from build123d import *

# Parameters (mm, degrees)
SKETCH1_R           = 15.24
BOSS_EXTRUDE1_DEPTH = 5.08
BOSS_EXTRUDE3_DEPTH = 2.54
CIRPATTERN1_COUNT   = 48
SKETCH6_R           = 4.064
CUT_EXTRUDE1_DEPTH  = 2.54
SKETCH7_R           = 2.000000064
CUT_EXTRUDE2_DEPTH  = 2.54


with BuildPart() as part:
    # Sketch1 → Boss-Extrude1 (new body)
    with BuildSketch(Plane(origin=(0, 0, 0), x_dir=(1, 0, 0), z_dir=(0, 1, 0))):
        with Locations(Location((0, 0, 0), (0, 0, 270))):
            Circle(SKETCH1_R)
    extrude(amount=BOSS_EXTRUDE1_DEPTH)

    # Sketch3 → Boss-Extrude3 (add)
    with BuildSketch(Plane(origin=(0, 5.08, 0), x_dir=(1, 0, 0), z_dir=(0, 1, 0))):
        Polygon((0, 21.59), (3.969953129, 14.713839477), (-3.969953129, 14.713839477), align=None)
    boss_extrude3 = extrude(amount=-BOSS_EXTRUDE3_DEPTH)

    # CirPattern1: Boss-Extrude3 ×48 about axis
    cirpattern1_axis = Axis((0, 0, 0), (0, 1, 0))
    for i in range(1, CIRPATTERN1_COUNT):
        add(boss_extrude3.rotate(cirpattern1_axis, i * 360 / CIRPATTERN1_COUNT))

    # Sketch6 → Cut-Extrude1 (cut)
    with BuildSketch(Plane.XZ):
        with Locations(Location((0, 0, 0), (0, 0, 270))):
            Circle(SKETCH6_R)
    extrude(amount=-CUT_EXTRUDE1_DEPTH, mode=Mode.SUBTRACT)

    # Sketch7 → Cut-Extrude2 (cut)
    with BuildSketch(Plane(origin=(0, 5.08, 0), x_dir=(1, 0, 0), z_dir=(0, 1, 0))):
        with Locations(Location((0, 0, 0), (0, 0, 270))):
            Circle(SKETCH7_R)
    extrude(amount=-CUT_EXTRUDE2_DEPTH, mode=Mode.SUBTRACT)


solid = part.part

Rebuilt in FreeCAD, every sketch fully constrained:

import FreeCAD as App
import Part
import Sketcher
Q = App.Units.Quantity


def add_polygon(sketch, points):
    """Adds a closed chain of lines whose ends are joined by coincident constraints."""
    first, n = sketch.GeometryCount, len(points)
    for a, b in zip(points, points[1:] + points[:1]):
        sketch.addGeometry(Part.LineSegment(App.Vector(*a, 0), App.Vector(*b, 0)), False)
    for i in range(n):
        sketch.addConstraint(Sketcher.Constraint("Coincident", first + i, 2, first + (i + 1) % n, 1))

doc = App.newDocument("Part")
body = doc.addObject("PartDesign::Body", "Body")

# Sketch on XZ plane
sketch1 = body.newObject("Sketcher::SketchObject", "Sketch")
sketch1.AttachmentSupport = (doc.getObject("XZ_Plane"), [""])
sketch1.MapMode = "FlatFace"
sketch1.addGeometry(Part.Circle(App.Vector(0, 0, 0), App.Vector(0, 0, 1), 15), False)
sketch1.addConstraint([
    Sketcher.Constraint("Coincident", 0, 3, -1, 1),
    Sketcher.Constraint("Diameter", 0, Q("1.2 in")),
])
pad1 = body.newObject("PartDesign::Pad", "Pad")
pad1.Profile = sketch1
pad1.Length = Q("0.2 in")
pad1.Reversed = True

# Sketch on XZ plane
sketch2 = body.newObject("Sketcher::SketchObject", "Sketch001")
sketch2.AttachmentSupport = (doc.getObject("XZ_Plane"), [""])
sketch2.MapMode = "FlatFace"
sketch2.AttachmentOffset = App.Placement(App.Vector(0, 0, -0.2 * 25.4), App.Rotation())
add_polygon(sketch2, [(4, -15), (0, -22), (-4, -15)])  # lines 0-2
sketch2.addConstraint([
    Sketcher.Constraint("Horizontal", 2),
    Sketcher.Constraint("PointOnObject", 0, 2, -2),
    Sketcher.Constraint("Equal", 0, 1),
    Sketcher.Constraint("Angle", 0, Q("-120 deg")),
    Sketcher.Constraint("DistanceY", 0, 2, -1, 1, Q("0.85 in")),
    Sketcher.Constraint("DistanceX", 2, 1, 2, 2, Q("7.939906 mm")),
])
pad2 = body.newObject("PartDesign::Pad", "Pad001")
pad2.Profile = sketch2
pad2.Length = Q("0.1 in")
doc.recompute()

polarpattern = body.newObject("PartDesign::PolarPattern", "PolarPattern")
polarpattern.Originals = [pad2]
polarpattern.Axis = (doc.getObject("Y_Axis"), [""])
polarpattern.Angle = 360
polarpattern.Occurrences = 48
body.Tip = polarpattern

# Sketch on XZ plane
sketch3 = body.newObject("Sketcher::SketchObject", "Sketch002")
sketch3.AttachmentSupport = (doc.getObject("XZ_Plane"), [""])
sketch3.MapMode = "FlatFace"
sketch3.addGeometry(Part.Circle(App.Vector(0, 0, 0), App.Vector(0, 0, 1), 4.1), False)
sketch3.addConstraint([
    Sketcher.Constraint("Coincident", 0, 3, -1, 1),
    Sketcher.Constraint("Diameter", 0, Q("0.32 in")),
])
pocket1 = body.newObject("PartDesign::Pocket", "Pocket")
pocket1.Profile = sketch3
pocket1.Length = Q("0.1 in")

# Sketch on XZ plane
sketch4 = body.newObject("Sketcher::SketchObject", "Sketch003")
sketch4.AttachmentSupport = (doc.getObject("XZ_Plane"), [""])
sketch4.MapMode = "FlatFace"
sketch4.AttachmentOffset = App.Placement(App.Vector(0, 0, -0.2 * 25.4), App.Rotation())
sketch4.addGeometry(Part.Circle(App.Vector(0, 0, 0), App.Vector(0, 0, 1), 2), False)
sketch4.addConstraint([
    Sketcher.Constraint("Coincident", 0, 3, -1, 1),
    Sketcher.Constraint("Diameter", 0, Q("4 mm")),
])
pocket2 = body.newObject("PartDesign::Pocket", "Pocket001")
pocket2.Profile = sketch4
pocket2.Length = Q("0.1 in")
pocket2.Reversed = True

doc.recompute()
